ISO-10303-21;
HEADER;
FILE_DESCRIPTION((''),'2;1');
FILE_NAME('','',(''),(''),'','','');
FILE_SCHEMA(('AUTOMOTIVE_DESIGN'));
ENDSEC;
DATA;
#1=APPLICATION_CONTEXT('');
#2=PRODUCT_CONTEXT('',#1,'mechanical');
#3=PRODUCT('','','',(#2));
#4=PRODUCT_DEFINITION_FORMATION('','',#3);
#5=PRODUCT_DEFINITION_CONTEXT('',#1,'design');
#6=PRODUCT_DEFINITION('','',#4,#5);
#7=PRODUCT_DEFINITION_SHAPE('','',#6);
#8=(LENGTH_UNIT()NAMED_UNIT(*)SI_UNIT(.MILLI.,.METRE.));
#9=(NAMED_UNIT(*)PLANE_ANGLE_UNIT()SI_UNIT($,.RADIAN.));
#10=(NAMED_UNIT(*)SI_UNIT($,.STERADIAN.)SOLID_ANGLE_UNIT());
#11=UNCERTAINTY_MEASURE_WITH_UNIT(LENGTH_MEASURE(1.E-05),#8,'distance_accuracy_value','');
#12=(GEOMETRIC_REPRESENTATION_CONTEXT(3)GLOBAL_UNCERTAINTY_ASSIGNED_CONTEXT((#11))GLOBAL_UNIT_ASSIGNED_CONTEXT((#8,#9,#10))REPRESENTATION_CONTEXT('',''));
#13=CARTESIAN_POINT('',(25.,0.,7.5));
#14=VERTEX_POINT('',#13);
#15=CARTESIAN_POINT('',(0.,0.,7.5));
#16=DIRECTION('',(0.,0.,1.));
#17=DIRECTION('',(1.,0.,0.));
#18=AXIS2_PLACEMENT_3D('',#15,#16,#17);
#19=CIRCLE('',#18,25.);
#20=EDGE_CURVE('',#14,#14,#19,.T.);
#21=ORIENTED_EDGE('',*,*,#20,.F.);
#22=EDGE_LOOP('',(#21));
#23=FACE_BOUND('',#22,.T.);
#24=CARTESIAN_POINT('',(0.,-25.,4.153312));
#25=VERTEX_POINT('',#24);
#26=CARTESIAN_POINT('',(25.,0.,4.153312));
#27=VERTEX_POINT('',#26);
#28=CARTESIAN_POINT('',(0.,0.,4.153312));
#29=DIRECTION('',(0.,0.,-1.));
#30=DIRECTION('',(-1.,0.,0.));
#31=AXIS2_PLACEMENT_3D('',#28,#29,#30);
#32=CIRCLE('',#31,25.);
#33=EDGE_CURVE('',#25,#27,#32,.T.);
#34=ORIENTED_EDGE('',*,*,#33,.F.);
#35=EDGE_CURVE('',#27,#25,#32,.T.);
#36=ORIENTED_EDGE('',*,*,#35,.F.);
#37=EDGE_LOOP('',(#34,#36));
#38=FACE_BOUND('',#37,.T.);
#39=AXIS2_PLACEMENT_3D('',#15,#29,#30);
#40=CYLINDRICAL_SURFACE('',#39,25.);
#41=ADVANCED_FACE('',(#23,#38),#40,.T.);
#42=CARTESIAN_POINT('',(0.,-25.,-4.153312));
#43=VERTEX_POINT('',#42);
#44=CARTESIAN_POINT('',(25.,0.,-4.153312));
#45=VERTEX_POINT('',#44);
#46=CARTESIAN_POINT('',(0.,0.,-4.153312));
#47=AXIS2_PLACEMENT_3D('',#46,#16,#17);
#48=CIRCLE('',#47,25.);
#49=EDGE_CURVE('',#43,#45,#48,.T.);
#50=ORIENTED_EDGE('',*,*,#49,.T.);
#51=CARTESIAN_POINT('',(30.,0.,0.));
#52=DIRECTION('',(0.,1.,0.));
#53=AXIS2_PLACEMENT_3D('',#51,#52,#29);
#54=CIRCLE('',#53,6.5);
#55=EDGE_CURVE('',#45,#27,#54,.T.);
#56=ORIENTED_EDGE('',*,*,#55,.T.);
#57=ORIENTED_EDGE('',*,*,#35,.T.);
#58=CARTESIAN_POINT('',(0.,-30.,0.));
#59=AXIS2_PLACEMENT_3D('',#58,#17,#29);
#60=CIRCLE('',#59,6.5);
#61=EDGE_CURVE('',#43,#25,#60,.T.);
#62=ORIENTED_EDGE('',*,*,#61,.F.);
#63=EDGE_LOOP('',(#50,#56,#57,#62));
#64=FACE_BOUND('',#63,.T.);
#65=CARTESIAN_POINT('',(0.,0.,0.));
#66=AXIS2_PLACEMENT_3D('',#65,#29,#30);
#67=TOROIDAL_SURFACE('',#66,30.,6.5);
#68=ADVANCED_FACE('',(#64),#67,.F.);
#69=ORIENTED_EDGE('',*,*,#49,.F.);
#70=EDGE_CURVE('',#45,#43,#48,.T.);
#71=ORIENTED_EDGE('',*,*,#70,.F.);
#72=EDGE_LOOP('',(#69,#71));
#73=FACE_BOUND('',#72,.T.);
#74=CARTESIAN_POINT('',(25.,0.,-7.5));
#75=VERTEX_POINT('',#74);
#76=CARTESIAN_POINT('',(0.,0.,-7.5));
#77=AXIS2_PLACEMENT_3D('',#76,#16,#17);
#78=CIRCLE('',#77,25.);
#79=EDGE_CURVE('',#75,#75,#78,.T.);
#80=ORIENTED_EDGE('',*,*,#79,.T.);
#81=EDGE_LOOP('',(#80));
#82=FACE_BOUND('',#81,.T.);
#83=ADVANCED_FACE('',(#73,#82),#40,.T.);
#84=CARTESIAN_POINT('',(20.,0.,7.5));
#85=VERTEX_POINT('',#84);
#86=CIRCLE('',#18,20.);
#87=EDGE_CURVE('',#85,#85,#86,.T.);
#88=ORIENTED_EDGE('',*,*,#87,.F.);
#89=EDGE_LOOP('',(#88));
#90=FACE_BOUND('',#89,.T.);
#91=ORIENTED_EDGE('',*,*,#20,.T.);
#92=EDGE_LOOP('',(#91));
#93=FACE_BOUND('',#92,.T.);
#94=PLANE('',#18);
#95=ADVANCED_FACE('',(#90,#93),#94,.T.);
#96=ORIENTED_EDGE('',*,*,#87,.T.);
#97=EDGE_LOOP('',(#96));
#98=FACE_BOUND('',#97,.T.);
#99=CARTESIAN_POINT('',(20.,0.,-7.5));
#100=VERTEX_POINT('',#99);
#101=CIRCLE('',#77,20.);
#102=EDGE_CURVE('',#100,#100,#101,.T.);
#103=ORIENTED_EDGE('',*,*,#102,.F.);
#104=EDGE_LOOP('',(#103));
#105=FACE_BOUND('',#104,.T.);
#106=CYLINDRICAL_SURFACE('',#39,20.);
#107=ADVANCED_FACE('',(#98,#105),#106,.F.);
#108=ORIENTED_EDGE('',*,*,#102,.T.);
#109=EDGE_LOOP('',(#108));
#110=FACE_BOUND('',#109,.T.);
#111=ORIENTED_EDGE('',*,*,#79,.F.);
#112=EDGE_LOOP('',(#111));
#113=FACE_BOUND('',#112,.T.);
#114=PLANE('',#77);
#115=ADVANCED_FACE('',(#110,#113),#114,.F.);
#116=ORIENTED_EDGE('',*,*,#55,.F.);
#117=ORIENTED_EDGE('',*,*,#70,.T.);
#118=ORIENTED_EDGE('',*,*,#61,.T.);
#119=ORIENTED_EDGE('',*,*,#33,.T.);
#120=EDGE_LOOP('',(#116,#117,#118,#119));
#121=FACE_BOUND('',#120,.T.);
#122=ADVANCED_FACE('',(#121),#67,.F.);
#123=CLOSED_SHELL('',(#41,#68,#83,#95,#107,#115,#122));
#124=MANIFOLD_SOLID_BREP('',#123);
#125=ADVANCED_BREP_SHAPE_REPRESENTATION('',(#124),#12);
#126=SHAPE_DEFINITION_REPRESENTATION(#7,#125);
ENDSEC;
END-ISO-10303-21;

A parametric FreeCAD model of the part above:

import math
import FreeCAD as App
import Part
import Sketcher

V = App.Vector
Q = App.Units.Quantity

doc = App.newDocument("Part")
body = doc.addObject("PartDesign::Body", "Body")

# Sketch on XY plane
sketch1 = doc.addObject("Sketcher::SketchObject", "Sketch")
body.addObject(sketch1)
sketch1.AttachmentSupport = (doc.XY_Plane, [""])
sketch1.MapMode = "FlatFace"
sketch1.addGeometry([
    Part.Circle(V(0, 0, 0), V(0, 0, 1), 25),
    Part.Circle(V(0, 0, 0), V(0, 0, 1), 20),
], False)
sketch1.addConstraint([
    Sketcher.Constraint("Coincident", 0, 3, -1, 1),
    Sketcher.Constraint("Coincident", 1, 3, -1, 1),
    Sketcher.Constraint("Diameter", 0, Q("50 mm")),
    Sketcher.Constraint("Diameter", 1, Q("40 mm")),
])
pad1 = doc.addObject("PartDesign::Pad", "Pad")
body.addObject(pad1)
pad1.Profile = sketch1
pad1.Length = 15
pad1.Midplane = True

# Sketch on YZ plane
sketch2 = doc.addObject("Sketcher::SketchObject", "Sketch001")
body.addObject(sketch2)
sketch2.AttachmentSupport = (doc.YZ_Plane, [""])
sketch2.MapMode = "FlatFace"
sketch2.addGeometry(Part.Circle(V(-30, 0, 0), V(0, 0, 1), 6), False)
sketch2.addConstraint([
    Sketcher.Constraint("PointOnObject", 0, 3, -1),
    Sketcher.Constraint("Diameter", 0, Q("13 mm")),
    Sketcher.Constraint("DistanceX", 0, 3, -1, 1, Q("30 mm")),
])

# Sketch on XY plane
sketch3 = doc.addObject("Sketcher::SketchObject", "Sketch002")
body.addObject(sketch3)
sketch3.AttachmentSupport = (doc.XY_Plane, [""])
sketch3.MapMode = "FlatFace"
sketch3.AttachmentOffset = App.Placement(V(0, 0, 7.5), App.Rotation())
sketch3.addGeometry([
    Part.ArcOfCircle(Part.Circle(V(0, 0, 0), V(0, 0, 1), 25), math.radians(0), math.radians(90)),
    Part.ArcOfCircle(Part.Circle(V(0, 0, 0), V(0, 0, 1), 25), math.radians(90), math.radians(180)),
    Part.ArcOfCircle(Part.Circle(V(0, 0, 0), V(0, 0, 1), 25), math.radians(180), math.radians(270)),
    Part.ArcOfCircle(Part.Circle(V(0, 0, 0), V(0, 0, 1), 25), math.radians(-90), math.radians(0)),
], False)
sketch3.addConstraint([
    Sketcher.Constraint("Tangent", 0, 2, 1, 1),
    Sketcher.Constraint("Tangent", 1, 2, 2, 1),
    Sketcher.Constraint("Tangent", 2, 2, 3, 1),
    Sketcher.Constraint("Tangent", 3, 2, 0, 1),
    Sketcher.Constraint("Coincident", 0, 3, -1, 1),
    Sketcher.Constraint("Equal", 0, 1),
    Sketcher.Constraint("PointOnObject", 0, 2, -2),
    Sketcher.Constraint("PointOnObject", 1, 2, -1),
    Sketcher.Constraint("PointOnObject", 2, 2, -2),
    Sketcher.Constraint("PointOnObject", 3, 2, -1),
    Sketcher.Constraint("Radius", 0, Q("25 mm")),
])
doc.recompute()

subtractivepipe = doc.addObject("PartDesign::SubtractivePipe", "SubtractivePipe")
body.addObject(subtractivepipe)
subtractivepipe.Profile = sketch2
subtractivepipe.Spine = (sketch3, ["Edge1", "Edge2", "Edge3", "Edge4"])

doc.recompute()
